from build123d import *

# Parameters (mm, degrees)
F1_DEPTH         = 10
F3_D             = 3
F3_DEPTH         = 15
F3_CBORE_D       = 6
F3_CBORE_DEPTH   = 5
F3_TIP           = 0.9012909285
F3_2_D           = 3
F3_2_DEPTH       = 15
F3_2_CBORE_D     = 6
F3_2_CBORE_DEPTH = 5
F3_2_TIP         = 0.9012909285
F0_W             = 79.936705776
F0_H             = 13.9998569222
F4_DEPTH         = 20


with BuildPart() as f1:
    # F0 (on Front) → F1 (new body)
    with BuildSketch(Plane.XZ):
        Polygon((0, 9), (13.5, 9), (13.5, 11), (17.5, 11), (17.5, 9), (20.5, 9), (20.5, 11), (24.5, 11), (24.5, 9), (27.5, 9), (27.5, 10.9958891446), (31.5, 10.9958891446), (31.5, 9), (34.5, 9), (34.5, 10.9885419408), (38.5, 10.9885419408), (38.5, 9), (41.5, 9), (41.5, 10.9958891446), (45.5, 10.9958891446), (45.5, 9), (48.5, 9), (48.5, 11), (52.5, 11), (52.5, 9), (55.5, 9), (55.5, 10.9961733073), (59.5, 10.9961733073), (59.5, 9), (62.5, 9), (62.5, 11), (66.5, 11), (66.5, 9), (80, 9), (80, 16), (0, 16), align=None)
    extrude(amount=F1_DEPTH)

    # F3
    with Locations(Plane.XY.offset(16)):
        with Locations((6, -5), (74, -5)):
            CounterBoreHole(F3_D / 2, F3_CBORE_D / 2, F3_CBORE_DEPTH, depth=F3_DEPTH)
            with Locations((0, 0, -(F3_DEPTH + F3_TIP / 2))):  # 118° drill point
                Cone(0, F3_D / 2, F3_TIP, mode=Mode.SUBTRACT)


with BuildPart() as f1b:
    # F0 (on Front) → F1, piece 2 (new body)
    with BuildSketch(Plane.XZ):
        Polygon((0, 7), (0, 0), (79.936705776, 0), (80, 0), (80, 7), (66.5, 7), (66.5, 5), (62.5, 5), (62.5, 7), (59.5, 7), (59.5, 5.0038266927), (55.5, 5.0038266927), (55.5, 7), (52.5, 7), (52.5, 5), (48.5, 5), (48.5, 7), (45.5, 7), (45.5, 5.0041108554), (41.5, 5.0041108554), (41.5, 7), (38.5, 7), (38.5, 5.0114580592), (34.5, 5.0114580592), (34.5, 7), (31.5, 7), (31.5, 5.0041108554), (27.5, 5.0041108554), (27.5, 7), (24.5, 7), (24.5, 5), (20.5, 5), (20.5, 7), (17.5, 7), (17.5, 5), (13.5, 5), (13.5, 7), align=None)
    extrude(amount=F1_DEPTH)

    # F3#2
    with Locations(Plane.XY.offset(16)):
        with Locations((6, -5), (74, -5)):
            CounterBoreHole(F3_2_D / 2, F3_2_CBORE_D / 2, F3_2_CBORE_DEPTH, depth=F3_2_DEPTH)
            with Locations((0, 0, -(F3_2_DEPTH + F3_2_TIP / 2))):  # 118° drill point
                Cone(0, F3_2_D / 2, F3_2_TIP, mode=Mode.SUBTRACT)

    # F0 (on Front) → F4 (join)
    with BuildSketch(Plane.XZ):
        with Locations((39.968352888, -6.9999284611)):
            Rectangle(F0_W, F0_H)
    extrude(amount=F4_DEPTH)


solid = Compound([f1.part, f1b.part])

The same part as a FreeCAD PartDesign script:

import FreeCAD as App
import Part
import Sketcher
from FreeCAD import Vector


def add_polygon(sketch, points):
    """Adds a closed chain of lines whose ends are joined by coincident constraints."""
    first, n = sketch.GeometryCount, len(points)
    for a, b in zip(points, points[1:] + points[:1]):
        sketch.addGeometry(Part.LineSegment(App.Vector(*a, 0), App.Vector(*b, 0)), False)
    for i in range(n):
        sketch.addConstraint(Sketcher.Constraint("Coincident", first + i, 2, first + (i + 1) % n, 1))

doc = App.newDocument("Part")
body = doc.addObject("PartDesign::Body", "Body")

# Sketch on XZ plane
sketch1 = body.newObject("Sketcher::SketchObject", "Sketch")
sketch1.AttachmentSupport = (doc.getObject("XZ_Plane"), [""])
sketch1.MapMode = "FlatFace"
add_polygon(sketch1, [(0, 9), (13.5, 9), (13.5, 11), (17.5, 11), (17.5, 9), (20.5, 9), (20.5, 11), (24.5, 11), (24.5, 9), (27.5, 9), (27.5, 10.995889), (31.5, 10.995889), (31.5, 9), (34.5, 9), (34.5, 10.988542), (38.5, 10.988542), (38.5, 9), (41.5, 9), (41.5, 10.995889), (45.5, 10.995889), (45.5, 9), (48.5, 9), (48.5, 11), (52.5, 11), (52.5, 9), (55.5, 9), (55.5, 10.996173), (59.5, 10.996173), (59.5, 9), (62.5, 9), (62.5, 11), (66.5, 11), (66.5, 9), (80, 9), (80, 16), (0, 16)])  # lines 0-35
sketch1.addConstraint([
    Sketcher.Constraint("Horizontal", 0),
    Sketcher.Constraint("Vertical", 1),
    Sketcher.Constraint("Horizontal", 2),
    Sketcher.Constraint("Vertical", 3),
    Sketcher.Constraint("Horizontal", 4),
    Sketcher.Constraint("Vertical", 5),
    Sketcher.Constraint("Horizontal", 6),
    Sketcher.Constraint("Vertical", 7),
    Sketcher.Constraint("Horizontal", 8),
    Sketcher.Constraint("Vertical", 9),
    Sketcher.Constraint("Horizontal", 10),
    Sketcher.Constraint("Vertical", 11),
    Sketcher.Constraint("Horizontal", 12),
    Sketcher.Constraint("Vertical", 13),
    Sketcher.Constraint("Horizontal", 14),
    Sketcher.Constraint("Vertical", 15),
    Sketcher.Constraint("Horizontal", 16),
    Sketcher.Constraint("Vertical", 17),
    Sketcher.Constraint("Horizontal", 18),
    Sketcher.Constraint("Vertical", 19),
    Sketcher.Constraint("Horizontal", 20),
    Sketcher.Constraint("Vertical", 21),
    Sketcher.Constraint("Horizontal", 22),
    Sketcher.Constraint("Vertical", 23),
    Sketcher.Constraint("Horizontal", 24),
    Sketcher.Constraint("Vertical", 25),
    Sketcher.Constraint("Horizontal", 26),
    Sketcher.Constraint("Vertical", 27),
    Sketcher.Constraint("Horizontal", 28),
    Sketcher.Constraint("Vertical", 29),
    Sketcher.Constraint("Horizontal", 30),
    Sketcher.Constraint("Vertical", 31),
    Sketcher.Constraint("Horizontal", 32),
    Sketcher.Constraint("Vertical", 33),
    Sketcher.Constraint("Horizontal", 34),
    Sketcher.Constraint("Vertical", 35),
    Sketcher.Constraint("PointOnObject", 34, 2, -2),
    Sketcher.Constraint("Horizontal", 0, 2, 3, 2),
    Sketcher.Constraint("Horizontal", 2, 2, 5, 2),
    Sketcher.Constraint("Horizontal", 4, 2, 7, 2),
    Sketcher.Constraint("Horizontal", 8, 2, 11, 2),
    Sketcher.Constraint("Horizontal", 12, 2, 15, 2),
    Sketcher.Constraint("Horizontal", 10, 2, 17, 2),
    Sketcher.Constraint("Horizontal", 16, 2, 19, 2),
    Sketcher.Constraint("Horizontal", 6, 2, 21, 2),
    Sketcher.Constraint("Horizontal", 20, 2, 23, 2),
    Sketcher.Constraint("Horizontal", 24, 2, 27, 2),
    Sketcher.Constraint("Horizontal", 22, 2, 29, 2),
    Sketcher.Constraint("Horizontal", 28, 2, 31, 2),
    Sketcher.Constraint("Equal", 2, 6),
    Sketcher.Constraint("Equal", 4, 8),
    Sketcher.Constraint("Equal", 6, 10),
    Sketcher.Constraint("Equal", 8, 12),
    Sketcher.Constraint("Equal", 10, 14),
    Sketcher.Constraint("Equal", 12, 16),
    Sketcher.Constraint("Equal", 14, 18),
    Sketcher.Constraint("Equal", 16, 20),
    Sketcher.Constraint("Equal", 18, 22),
    Sketcher.Constraint("Equal", 20, 24),
    Sketcher.Constraint("Equal", 22, 26),
    Sketcher.Constraint("Equal", 24, 28),
    Sketcher.Constraint("Equal", 26, 30),
    Sketcher.Constraint("Equal", 0, 32),
    Sketcher.Constraint("DistanceX", 2, 1, 2, 2, 4.0),
    Sketcher.Constraint("DistanceX", 4, 1, 4, 2, 3.0),
    Sketcher.Constraint("DistanceX", 34, 2, 34, 1, 80.0),
    Sketcher.Constraint("DistanceY", 1, 1, 1, 2, 2.0),
    Sketcher.Constraint("DistanceY", 33, 1, 33, 2, 7.0),
    Sketcher.Constraint("DistanceY", -1, 1, 0, 2, 9.0),
    Sketcher.Constraint("DistanceY", 9, 1, 9, 2, 1.995889),
    Sketcher.Constraint("DistanceY", 13, 1, 13, 2, 1.988542),
    Sketcher.Constraint("DistanceY", 25, 1, 25, 2, 1.996173),
])
pad1 = body.newObject("PartDesign::Pad", "Pad")
pad1.Profile = sketch1
pad1.Length = 10

# Sketch on XY plane
sketch2 = body.newObject("Sketcher::SketchObject", "Sketch001")
sketch2.AttachmentSupport = (doc.getObject("XY_Plane"), [""])
sketch2.MapMode = "FlatFace"
sketch2.AttachmentOffset = App.Placement(Vector(0, 0, 16), App.Rotation())
sketch2.addGeometry([
    Part.Circle(Vector(6, -5, 0), Vector(0, 0, 1), 1.5),
    Part.Circle(Vector(74, -5, 0), Vector(0, 0, 1), 1.5),
], False)
sketch2.addConstraint([
    Sketcher.Constraint("Equal", 0, 1),
    Sketcher.Constraint("Horizontal", 0, 3, 1, 3),
    Sketcher.Constraint("Diameter", 0, 3.0),
    Sketcher.Constraint("DistanceX", -1, 1, 0, 3, 6.0),
    Sketcher.Constraint("DistanceY", 0, 3, -1, 1, 5.0),
    Sketcher.Constraint("DistanceX", -1, 1, 1, 3, 74.0),
])
doc.recompute()
hole = body.newObject("PartDesign::Hole", "Hole")
hole.Profile = sketch2
hole.ThreadType = "None"
hole.Diameter = 3
hole.DepthType = "Dimension"
hole.Depth = 15
hole.DrillPoint = "Angled"
hole.DrillPointAngle = 118
hole.HoleCutType = "Counterbore"
hole.HoleCutDiameter = 6
hole.HoleCutDepth = 5
body2 = doc.addObject("PartDesign::Body", "Body001")

# Sketch on XZ plane
sketch3 = body2.newObject("Sketcher::SketchObject", "Sketch002")
sketch3.AttachmentSupport = (doc.getObject("XZ_Plane001"), [""])
sketch3.MapMode = "FlatFace"
add_polygon(sketch3, [(0, 7), (0, 0), (80, 0), (80, 7), (66.5, 7), (66.5, 5), (62.5, 5), (62.5, 7), (59.5, 7), (59.5, 5.003827), (55.5, 5.003827), (55.5, 7), (52.5, 7), (52.5, 5), (48.5, 5), (48.5, 7), (45.5, 7), (45.5, 5.004111), (41.5, 5.004111), (41.5, 7), (38.5, 7), (38.5, 5.011458), (34.5, 5.011458), (34.5, 7), (31.5, 7), (31.5, 5.004111), (27.5, 5.004111), (27.5, 7), (24.5, 7), (24.5, 5), (20.5, 5), (20.5, 7), (17.5, 7), (17.5, 5), (13.5, 5), (13.5, 7)])  # lines 0-35
sketch3.addConstraint([
    Sketcher.Constraint("Vertical", 0),
    Sketcher.Constraint("Horizontal", 1),
    Sketcher.Constraint("Vertical", 2),
    Sketcher.Constraint("Horizontal", 3),
    Sketcher.Constraint("Vertical", 4),
    Sketcher.Constraint("Horizontal", 5),
    Sketcher.Constraint("Vertical", 6),
    Sketcher.Constraint("Horizontal", 7),
    Sketcher.Constraint("Vertical", 8),
    Sketcher.Constraint("Horizontal", 9),
    Sketcher.Constraint("Vertical", 10),
    Sketcher.Constraint("Horizontal", 11),
    Sketcher.Constraint("Vertical", 12),
    Sketcher.Constraint("Horizontal", 13),
    Sketcher.Constraint("Vertical", 14),
    Sketcher.Constraint("Horizontal", 15),
    Sketcher.Constraint("Vertical", 16),
    Sketcher.Constraint("Horizontal", 17),
    Sketcher.Constraint("Vertical", 18),
    Sketcher.Constraint("Horizontal", 19),
    Sketcher.Constraint("Vertical", 20),
    Sketcher.Constraint("Horizontal", 21),
    Sketcher.Constraint("Vertical", 22),
    Sketcher.Constraint("Horizontal", 23),
    Sketcher.Constraint("Vertical", 24),
    Sketcher.Constraint("Horizontal", 25),
    Sketcher.Constraint("Vertical", 26),
    Sketcher.Constraint("Horizontal", 27),
    Sketcher.Constraint("Vertical", 28),
    Sketcher.Constraint("Horizontal", 29),
    Sketcher.Constraint("Vertical", 30),
    Sketcher.Constraint("Horizontal", 31),
    Sketcher.Constraint("Vertical", 32),
    Sketcher.Constraint("Horizontal", 33),
    Sketcher.Constraint("Vertical", 34),
    Sketcher.Constraint("Horizontal", 35),
    Sketcher.Constraint("Coincident", 0, 2, -1, 1),
    Sketcher.Constraint("Horizontal", 3, 2, 6, 2),
    Sketcher.Constraint("Horizontal", 7, 2, 10, 2),
    Sketcher.Constraint("Horizontal", 5, 2, 12, 2),
    Sketcher.Constraint("Horizontal", 11, 2, 14, 2),
    Sketcher.Constraint("Horizontal", 15, 2, 18, 2),
    Sketcher.Constraint("Horizontal", 19, 2, 22, 2),
    Sketcher.Constraint("Horizontal", 17, 2, 24, 2),
    Sketcher.Constraint("Horizontal", 23, 2, 26, 2),
    Sketcher.Constraint("Horizontal", 13, 2, 28, 2),
    Sketcher.Constraint("Horizontal", 27, 2, 30, 2),
    Sketcher.Constraint("Horizontal", 29, 2, 32, 2),
    Sketcher.Constraint("Horizontal", 31, 2, 34, 2),
    Sketcher.Constraint("Equal", 5, 9),
    Sketcher.Constraint("Equal", 7, 11),
    Sketcher.Constraint("Equal", 9, 13),
    Sketcher.Constraint("Equal", 11, 15),
    Sketcher.Constraint("Equal", 13, 17),
    Sketcher.Constraint("Equal", 15, 19),
    Sketcher.Constraint("Equal", 17, 21),
    Sketcher.Constraint("Equal", 19, 23),
    Sketcher.Constraint("Equal", 21, 25),
    Sketcher.Constraint("Equal", 23, 27),
    Sketcher.Constraint("Equal", 25, 29),
    Sketcher.Constraint("Equal", 27, 31),
    Sketcher.Constraint("Equal", 29, 33),
    Sketcher.Constraint("Equal", 3, 35),
    Sketcher.Constraint("DistanceX", 1, 1, 1, 2, 80.0),
    Sketcher.Constraint("DistanceX", 5, 2, 5, 1, 4.0),
    Sketcher.Constraint("DistanceX", 7, 2, 7, 1, 3.0),
    Sketcher.Constraint("DistanceY", 0, 2, 0, 1, 7.0),
    Sketcher.Constraint("DistanceY", 4, 2, 4, 1, 2.0),
    Sketcher.Constraint("DistanceY", 16, 2, 16, 1, 1.995889),
    Sketcher.Constraint("DistanceY", 20, 2, 20, 1, 1.988542),
    Sketcher.Constraint("DistanceY", 8, 2, 8, 1, 1.996173),
])
pad2 = body2.newObject("PartDesign::Pad", "Pad001")
pad2.Profile = sketch3
pad2.Length = 10

# Sketch on XY plane
sketch4 = body2.newObject("Sketcher::SketchObject", "Sketch003")
sketch4.AttachmentSupport = (doc.getObject("XY_Plane001"), [""])
sketch4.MapMode = "FlatFace"
sketch4.AttachmentOffset = App.Placement(Vector(0, 0, 16), App.Rotation())
sketch4.addGeometry([
    Part.Circle(Vector(6, -5, 0), Vector(0, 0, 1), 1.5),
    Part.Circle(Vector(74, -5, 0), Vector(0, 0, 1), 1.5),
], False)
sketch4.addConstraint([
    Sketcher.Constraint("Equal", 0, 1),
    Sketcher.Constraint("Horizontal", 0, 3, 1, 3),
    Sketcher.Constraint("Diameter", 0, 3.0),
    Sketcher.Constraint("DistanceX", -1, 1, 0, 3, 6.0),
    Sketcher.Constraint("DistanceY", 0, 3, -1, 1, 5.0),
    Sketcher.Constraint("DistanceX", -1, 1, 1, 3, 74.0),
])
doc.recompute()
hole2 = body2.newObject("PartDesign::Hole", "Hole001")
hole2.Profile = sketch4
hole2.ThreadType = "None"
hole2.Diameter = 3
hole2.DepthType = "Dimension"
hole2.Depth = 15
hole2.DrillPoint = "Angled"
hole2.DrillPointAngle = 118
hole2.HoleCutType = "Counterbore"
hole2.HoleCutDiameter = 6
hole2.HoleCutDepth = 5

# Sketch on XZ plane
sketch5 = body2.newObject("Sketcher::SketchObject", "Sketch004")
sketch5.AttachmentSupport = (doc.getObject("XZ_Plane001"), [""])
sketch5.MapMode = "FlatFace"
add_polygon(sketch5, [(0, 0), (0, -13.999857), (79.936706, -13.999857), (79.936706, 0)])  # lines 0-3
sketch5.addConstraint([
    Sketcher.Constraint("Vertical", 0),
    Sketcher.Constraint("Horizontal", 1),
    Sketcher.Constraint("Vertical", 2),
    Sketcher.Constraint("Horizontal", 3),
    Sketcher.Constraint("Coincident", 3, 2, -1, 1),
    Sketcher.Constraint("DistanceX", 1, 1, 1, 2, 79.936706),
    Sketcher.Constraint("DistanceY", 0, 2, 0, 1, 13.999857),
])
pad3 = body2.newObject("PartDesign::Pad", "Pad002")
pad3.Profile = sketch5
pad3.Length = 20

doc.recompute()
